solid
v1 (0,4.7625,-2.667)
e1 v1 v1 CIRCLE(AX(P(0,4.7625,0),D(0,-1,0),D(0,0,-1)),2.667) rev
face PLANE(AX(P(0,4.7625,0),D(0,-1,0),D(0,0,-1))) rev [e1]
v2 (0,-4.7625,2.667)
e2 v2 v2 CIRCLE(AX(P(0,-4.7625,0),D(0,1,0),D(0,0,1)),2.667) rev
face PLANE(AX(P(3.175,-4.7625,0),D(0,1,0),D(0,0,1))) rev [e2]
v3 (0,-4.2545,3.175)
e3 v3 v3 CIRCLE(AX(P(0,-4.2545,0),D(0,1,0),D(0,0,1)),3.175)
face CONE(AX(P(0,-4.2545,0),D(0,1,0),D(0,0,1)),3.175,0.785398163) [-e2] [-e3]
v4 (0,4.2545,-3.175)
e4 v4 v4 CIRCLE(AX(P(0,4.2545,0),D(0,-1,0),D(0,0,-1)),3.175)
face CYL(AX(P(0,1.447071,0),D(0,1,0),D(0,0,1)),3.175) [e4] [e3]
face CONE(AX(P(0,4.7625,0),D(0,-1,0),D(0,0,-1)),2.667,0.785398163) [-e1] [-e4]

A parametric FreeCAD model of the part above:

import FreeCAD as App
import Part
import Sketcher
Q = App.Units.Quantity


def edges_at(feature, points):
    """Names of the edges that pass closest to the given points."""
    edges = feature.Shape.Edges
    near = lambda p: min(range(len(edges)), key=lambda i: edges[i].distToShape(Part.Vertex(*p))[0])
    return sorted({f"Edge{near(p) + 1}" for p in points})


def add_polygon(sketch, points):
    """Adds a closed chain of lines whose ends are joined by coincident constraints."""
    first, n = sketch.GeometryCount, len(points)
    for a, b in zip(points, points[1:] + points[:1]):
        sketch.addGeometry(Part.LineSegment(App.Vector(*a, 0), App.Vector(*b, 0)), False)
    for i in range(n):
        sketch.addConstraint(Sketcher.Constraint("Coincident", first + i, 2, first + (i + 1) % n, 1))

doc = App.newDocument("Part")
body = doc.addObject("PartDesign::Body", "Body")

sketch1 = body.newObject("Sketcher::SketchObject", "Sketch")
sketch1.AttachmentSupport = (doc.getObject("XY_Plane"), [""])
sketch1.MapMode = "FlatFace"
add_polygon(sketch1, [(0, 4.8), (0, -4.8), (3.2, -4.8), (3.2, 4.8)])
sketch1.addConstraint([
    Sketcher.Constraint("Vertical", 0),
    Sketcher.Constraint("Horizontal", 1),
    Sketcher.Constraint("Vertical", 2),
    Sketcher.Constraint("Horizontal", 3),
    Sketcher.Constraint("Symmetric", 0, 2, 3, 2, -1, 1),
    Sketcher.Constraint("DistanceX", 1, 1, 1, 2, Q("0.125 in")),
    Sketcher.Constraint("DistanceY", 0, 2, 0, 1, Q("0.375 in")),
])
revolution = body.newObject("PartDesign::Revolution", "Revolution")
revolution.Profile = sketch1
revolution.ReferenceAxis = (sketch1, ["V_Axis"])
revolution.Angle = 360
doc.recompute()

chamfer = body.newObject("PartDesign::Chamfer", "Chamfer")
chamfer.Base = (revolution, edges_at(revolution, [(-3.175, -4.763, 0), (-3.175, 4.763, 0)]))
chamfer.Size = Q("0.02 in")

doc.recompute()
